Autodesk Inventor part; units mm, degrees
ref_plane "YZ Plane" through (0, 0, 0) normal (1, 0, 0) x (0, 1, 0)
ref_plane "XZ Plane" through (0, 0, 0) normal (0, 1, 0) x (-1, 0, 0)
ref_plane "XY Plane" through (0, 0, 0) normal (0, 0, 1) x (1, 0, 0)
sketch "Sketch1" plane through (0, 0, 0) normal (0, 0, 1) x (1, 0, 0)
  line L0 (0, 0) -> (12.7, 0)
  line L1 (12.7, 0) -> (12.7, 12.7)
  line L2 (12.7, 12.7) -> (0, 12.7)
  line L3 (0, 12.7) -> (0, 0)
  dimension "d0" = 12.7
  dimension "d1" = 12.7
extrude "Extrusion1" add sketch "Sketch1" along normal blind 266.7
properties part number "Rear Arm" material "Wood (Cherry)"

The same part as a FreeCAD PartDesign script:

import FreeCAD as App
import Part
import Sketcher

V = App.Vector
Q = App.Units.Quantity


def add_polygon(sketch, points):
    """Adds a closed chain of lines whose ends are joined by coincident constraints."""
    first, n = sketch.GeometryCount, len(points)
    for a, b in zip(points, points[1:] + points[:1]):
        sketch.addGeometry(Part.LineSegment(App.Vector(*a, 0), App.Vector(*b, 0)), False)
    for i in range(n):
        sketch.addConstraint(Sketcher.Constraint("Coincident", first + i, 2, first + (i + 1) % n, 1))

doc = App.newDocument("Part")
body = doc.addObject("PartDesign::Body", "Body")

# Sketch on XY plane
sketch1 = body.newObject("Sketcher::SketchObject", "Sketch")
sketch1.AttachmentSupport = (doc.getObject("XY_Plane"), [""])
sketch1.MapMode = "FlatFace"
add_polygon(sketch1, [(0, 13), (0, 0), (13, 0), (13, 13)])  # lines 0-3
sketch1.addConstraint([
    Sketcher.Constraint("Vertical", 0),
    Sketcher.Constraint("Horizontal", 1),
    Sketcher.Constraint("Vertical", 2),
    Sketcher.Constraint("Horizontal", 3),
    Sketcher.Constraint("Coincident", 0, 2, -1, 1),
    Sketcher.Constraint("Equal", 3, 0),
    Sketcher.Constraint("DistanceX", 1, 1, 1, 2, Q("0.5 in")),
])
pad1 = body.newObject("PartDesign::Pad", "Pad")
pad1.Profile = sketch1
pad1.Length = Q("10.5 in")

doc.recompute()
